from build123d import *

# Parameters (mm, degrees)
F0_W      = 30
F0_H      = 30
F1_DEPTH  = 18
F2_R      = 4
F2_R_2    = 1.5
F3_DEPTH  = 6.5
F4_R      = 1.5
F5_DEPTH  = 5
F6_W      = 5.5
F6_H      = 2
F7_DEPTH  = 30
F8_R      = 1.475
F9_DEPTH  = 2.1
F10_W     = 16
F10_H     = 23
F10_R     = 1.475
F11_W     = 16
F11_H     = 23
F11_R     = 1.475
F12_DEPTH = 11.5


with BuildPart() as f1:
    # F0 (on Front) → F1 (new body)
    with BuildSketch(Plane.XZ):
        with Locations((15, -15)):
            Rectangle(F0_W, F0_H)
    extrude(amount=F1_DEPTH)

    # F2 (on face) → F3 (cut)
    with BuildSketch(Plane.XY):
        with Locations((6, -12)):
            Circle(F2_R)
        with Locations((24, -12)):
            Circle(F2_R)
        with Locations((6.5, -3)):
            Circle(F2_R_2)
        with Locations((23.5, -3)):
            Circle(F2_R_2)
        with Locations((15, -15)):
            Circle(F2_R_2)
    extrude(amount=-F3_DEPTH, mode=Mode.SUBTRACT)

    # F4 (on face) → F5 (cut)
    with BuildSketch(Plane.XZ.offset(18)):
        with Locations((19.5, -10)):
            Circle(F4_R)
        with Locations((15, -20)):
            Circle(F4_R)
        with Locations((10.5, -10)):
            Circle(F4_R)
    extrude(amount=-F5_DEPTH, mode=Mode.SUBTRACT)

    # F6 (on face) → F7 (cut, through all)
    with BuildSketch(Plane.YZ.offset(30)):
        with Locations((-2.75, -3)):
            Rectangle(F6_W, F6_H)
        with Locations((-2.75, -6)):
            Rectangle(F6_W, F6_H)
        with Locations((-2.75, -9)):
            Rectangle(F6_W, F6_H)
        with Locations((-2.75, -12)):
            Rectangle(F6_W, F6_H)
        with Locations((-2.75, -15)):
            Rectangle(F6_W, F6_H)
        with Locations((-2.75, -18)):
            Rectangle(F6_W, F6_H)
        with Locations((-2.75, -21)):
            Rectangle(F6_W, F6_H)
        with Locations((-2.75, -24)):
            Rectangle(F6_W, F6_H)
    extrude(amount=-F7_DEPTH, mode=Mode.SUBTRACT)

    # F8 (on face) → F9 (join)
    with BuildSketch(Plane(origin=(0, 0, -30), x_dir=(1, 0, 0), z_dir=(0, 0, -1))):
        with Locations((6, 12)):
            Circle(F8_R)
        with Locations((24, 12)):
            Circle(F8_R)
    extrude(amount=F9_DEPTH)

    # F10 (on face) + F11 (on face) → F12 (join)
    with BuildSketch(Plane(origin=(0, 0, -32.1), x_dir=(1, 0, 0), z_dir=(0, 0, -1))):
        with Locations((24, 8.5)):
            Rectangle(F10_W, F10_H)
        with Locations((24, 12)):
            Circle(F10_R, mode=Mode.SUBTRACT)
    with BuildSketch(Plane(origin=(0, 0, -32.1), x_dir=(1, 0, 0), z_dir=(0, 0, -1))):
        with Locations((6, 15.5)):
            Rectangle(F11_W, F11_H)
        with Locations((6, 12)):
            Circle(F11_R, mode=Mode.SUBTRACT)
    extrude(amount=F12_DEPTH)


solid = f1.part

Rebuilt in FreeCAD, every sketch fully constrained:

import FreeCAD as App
import Part
import Sketcher

V = App.Vector
Q = App.Units.Quantity

doc = App.newDocument("Part")
body = doc.addObject("PartDesign::Body", "Body")
body.AllowCompound = True

sketch1 = body.newObject("Sketcher::SketchObject", "Sketch")
sketch1.AttachmentSupport = (doc.getObject("XZ_Plane"), [""])
sketch1.MapMode = "FlatFace"
sketch1.addGeometry(Part.LineSegment(V(0, 0, 0), V(0, -30, 0)), False)
sketch1.addGeometry(Part.LineSegment(V(0, -30, 0), V(30, -30, 0)), False)
sketch1.addGeometry(Part.LineSegment(V(30, -30, 0), V(30, 0, 0)), False)
sketch1.addGeometry(Part.LineSegment(V(30, 0, 0), V(0, 0, 0)), False)
sketch1.addConstraint(Sketcher.Constraint("Coincident", 0, 2, 1, 1))
sketch1.addConstraint(Sketcher.Constraint("Coincident", 1, 2, 2, 1))
sketch1.addConstraint(Sketcher.Constraint("Coincident", 2, 2, 3, 1))
sketch1.addConstraint(Sketcher.Constraint("Coincident", 3, 2, 0, 1))
sketch1.addConstraint(Sketcher.Constraint("Vertical", 0))
sketch1.addConstraint(Sketcher.Constraint("Horizontal", 1))
sketch1.addConstraint(Sketcher.Constraint("Vertical", 2))
sketch1.addConstraint(Sketcher.Constraint("Horizontal", 3))
sketch1.addConstraint(Sketcher.Constraint("Coincident", 3, 2, -1, 1))
sketch1.addConstraint(Sketcher.Constraint("Equal", 3, 0))
sketch1.addConstraint(Sketcher.Constraint("DistanceX", 1, 1, 1, 2, Q("30 mm")))
pad1 = body.newObject("PartDesign::Pad", "Pad")
pad1.Profile = sketch1
pad1.Length = 18

sketch2 = body.newObject("Sketcher::SketchObject", "Sketch001")
sketch2.AttachmentSupport = (doc.getObject("XY_Plane"), [""])
sketch2.MapMode = "FlatFace"
sketch2.addGeometry(Part.Circle(V(6, -12, 0), V(0, 0, 1), 4), False)
sketch2.addGeometry(Part.Circle(V(24, -12, 0), V(0, 0, 1), 4), False)
sketch2.addGeometry(Part.Circle(V(6.5, -3, 0), V(0, 0, 1), 1.5), False)
sketch2.addGeometry(Part.Circle(V(23.5, -3, 0), V(0, 0, 1), 1.5), False)
sketch2.addGeometry(Part.Circle(V(15, -15, 0), V(0, 0, 1), 1.5), False)
sketch2.addConstraint(Sketcher.Constraint("Equal", 0, 1))
sketch2.addConstraint(Sketcher.Constraint("Equal", 2, 3))
sketch2.addConstraint(Sketcher.Constraint("Equal", 3, 4))
sketch2.addConstraint(Sketcher.Constraint("Horizontal", 0, 3, 1, 3))
sketch2.addConstraint(Sketcher.Constraint("Horizontal", 2, 3, 3, 3))
sketch2.addConstraint(Sketcher.Constraint("Diameter", 0, Q("8 mm")))
sketch2.addConstraint(Sketcher.Constraint("Diameter", 2, Q("3 mm")))
sketch2.addConstraint(Sketcher.Constraint("DistanceX", -1, 1, 0, 3, Q("6 mm")))
sketch2.addConstraint(Sketcher.Constraint("DistanceY", 0, 3, -1, 1, Q("12 mm")))
sketch2.addConstraint(Sketcher.Constraint("DistanceX", -1, 1, 1, 3, Q("24 mm")))
sketch2.addConstraint(Sketcher.Constraint("DistanceY", 2, 3, -1, 1, Q("3 mm")))
sketch2.addConstraint(Sketcher.Constraint("DistanceX", -1, 1, 4, 3, Q("15 mm")))
sketch2.addConstraint(Sketcher.Constraint("DistanceY", 4, 3, -1, 1, Q("15 mm")))
sketch2.addConstraint(Sketcher.Constraint("DistanceX", 2, 3, 3, 3, Q("17 mm")))
sketch2.addConstraint(Sketcher.Constraint("DistanceX", -1, 1, 2, 3, Q("6.5 mm")))
pocket1 = body.newObject("PartDesign::Pocket", "Pocket")
pocket1.Profile = sketch2
pocket1.Length = 6.5

sketch3 = body.newObject("Sketcher::SketchObject", "Sketch002")
sketch3.AttachmentSupport = (doc.getObject("XZ_Plane"), [""])
sketch3.MapMode = "FlatFace"
sketch3.AttachmentOffset = App.Placement(V(0, 0, 18), App.Rotation())
sketch3.addGeometry(Part.Circle(V(19.5, -10, 0), V(0, 0, 1), 1.5), False)
sketch3.addGeometry(Part.Circle(V(15, -20, 0), V(0, 0, 1), 1.5), False)
sketch3.addGeometry(Part.Circle(V(10.5, -10, 0), V(0, 0, 1), 1.5), False)
sketch3.addConstraint(Sketcher.Constraint("Equal", 0, 1))
sketch3.addConstraint(Sketcher.Constraint("Equal", 1, 2))
sketch3.addConstraint(Sketcher.Constraint("Horizontal", 0, 3, 2, 3))
sketch3.addConstraint(Sketcher.Constraint("Diameter", 0, Q("3 mm")))
sketch3.addConstraint(Sketcher.Constraint("DistanceY", 0, 3, -1, 1, Q("10 mm")))
sketch3.addConstraint(Sketcher.Constraint("DistanceX", -1, 1, 1, 3, Q("15 mm")))
sketch3.addConstraint(Sketcher.Constraint("DistanceY", 1, 3, -1, 1, Q("20 mm")))
sketch3.addConstraint(Sketcher.Constraint("DistanceX", 2, 3, 0, 3, Q("9 mm")))
sketch3.addConstraint(Sketcher.Constraint("DistanceX", -1, 1, 0, 3, Q("19.5 mm")))
pocket2 = body.newObject("PartDesign::Pocket", "Pocket001")
pocket2.Profile = sketch3
pocket2.Length = 5

sketch4 = body.newObject("Sketcher::SketchObject", "Sketch003")
sketch4.AttachmentSupport = (doc.getObject("YZ_Plane"), [""])
sketch4.MapMode = "FlatFace"
sketch4.AttachmentOffset = App.Placement(V(0, 0, 30), App.Rotation())
sketch4.addGeometry(Part.LineSegment(V(-5.5, -2, 0), V(-5.5, -4, 0)), False)
sketch4.addGeometry(Part.LineSegment(V(-5.5, -4, 0), V(0, -4, 0)), False)
sketch4.addGeometry(Part.LineSegment(V(0, -4, 0), V(0, -2, 0)), False)
sketch4.addGeometry(Part.LineSegment(V(0, -2, 0), V(-5.5, -2, 0)), False)
sketch4.addGeometry(Part.LineSegment(V(-5.5, -5, 0), V(-5.5, -7, 0)), False)
sketch4.addGeometry(Part.LineSegment(V(-5.5, -7, 0), V(0, -7, 0)), False)
sketch4.addGeometry(Part.LineSegment(V(0, -7, 0), V(0, -5, 0)), False)
sketch4.addGeometry(Part.LineSegment(V(0, -5, 0), V(-5.5, -5, 0)), False)
sketch4.addGeometry(Part.LineSegment(V(-5.5, -8, 0), V(-5.5, -10, 0)), False)
sketch4.addGeometry(Part.LineSegment(V(-5.5, -10, 0), V(0, -10, 0)), False)
sketch4.addGeometry(Part.LineSegment(V(0, -10, 0), V(0, -8, 0)), False)
sketch4.addGeometry(Part.LineSegment(V(0, -8, 0), V(-5.5, -8, 0)), False)
sketch4.addGeometry(Part.LineSegment(V(-5.5, -11, 0), V(-5.5, -13, 0)), False)
sketch4.addGeometry(Part.LineSegment(V(-5.5, -13, 0), V(0, -13, 0)), False)
sketch4.addGeometry(Part.LineSegment(V(0, -13, 0), V(0, -11, 0)), False)
sketch4.addGeometry(Part.LineSegment(V(0, -11, 0), V(-5.5, -11, 0)), False)
sketch4.addGeometry(Part.LineSegment(V(-5.5, -14, 0), V(-5.5, -16, 0)), False)
sketch4.addGeometry(Part.LineSegment(V(-5.5, -16, 0), V(0, -16, 0)), False)
sketch4.addGeometry(Part.LineSegment(V(0, -16, 0), V(0, -14, 0)), False)
sketch4.addGeometry(Part.LineSegment(V(0, -14, 0), V(-5.5, -14, 0)), False)
sketch4.addGeometry(Part.LineSegment(V(-5.5, -17, 0), V(-5.5, -19, 0)), False)
sketch4.addGeometry(Part.LineSegment(V(-5.5, -19, 0), V(0, -19, 0)), False)
sketch4.addGeometry(Part.LineSegment(V(0, -19, 0), V(0, -17, 0)), False)
sketch4.addGeometry(Part.LineSegment(V(0, -17, 0), V(-5.5, -17, 0)), False)
sketch4.addGeometry(Part.LineSegment(V(-5.5, -20, 0), V(-5.5, -22, 0)), False)
sketch4.addGeometry(Part.LineSegment(V(-5.5, -22, 0), V(0, -22, 0)), False)
sketch4.addGeometry(Part.LineSegment(V(0, -22, 0), V(0, -20, 0)), False)
sketch4.addGeometry(Part.LineSegment(V(0, -20, 0), V(-5.5, -20, 0)), False)
sketch4.addGeometry(Part.LineSegment(V(-5.5, -23, 0), V(-5.5, -25, 0)), False)
sketch4.addGeometry(Part.LineSegment(V(-5.5, -25, 0), V(0, -25, 0)), False)
sketch4.addGeometry(Part.LineSegment(V(0, -25, 0), V(0, -23, 0)), False)
sketch4.addGeometry(Part.LineSegment(V(0, -23, 0), V(-5.5, -23, 0)), False)
sketch4.addConstraint(Sketcher.Constraint("Coincident", 0, 2, 1, 1))
sketch4.addConstraint(Sketcher.Constraint("Coincident", 1, 2, 2, 1))
sketch4.addConstraint(Sketcher.Constraint("Coincident", 2, 2, 3, 1))
sketch4.addConstraint(Sketcher.Constraint("Coincident", 3, 2, 0, 1))
sketch4.addConstraint(Sketcher.Constraint("Coincident", 4, 2, 5, 1))
sketch4.addConstraint(Sketcher.Constraint("Coincident", 5, 2, 6, 1))
sketch4.addConstraint(Sketcher.Constraint("Coincident", 6, 2, 7, 1))
sketch4.addConstraint(Sketcher.Constraint("Coincident", 7, 2, 4, 1))
sketch4.addConstraint(Sketcher.Constraint("Coincident", 8, 2, 9, 1))
sketch4.addConstraint(Sketcher.Constraint("Coincident", 9, 2, 10, 1))
sketch4.addConstraint(Sketcher.Constraint("Coincident", 10, 2, 11, 1))
sketch4.addConstraint(Sketcher.Constraint("Coincident", 11, 2, 8, 1))
sketch4.addConstraint(Sketcher.Constraint("Coincident", 12, 2, 13, 1))
sketch4.addConstraint(Sketcher.Constraint("Coincident", 13, 2, 14, 1))
sketch4.addConstraint(Sketcher.Constraint("Coincident", 14, 2, 15, 1))
sketch4.addConstraint(Sketcher.Constraint("Coincident", 15, 2, 12, 1))
sketch4.addConstraint(Sketcher.Constraint("Coincident", 16, 2, 17, 1))
sketch4.addConstraint(Sketcher.Constraint("Coincident", 17, 2, 18, 1))
sketch4.addConstraint(Sketcher.Constraint("Coincident", 18, 2, 19, 1))
sketch4.addConstraint(Sketcher.Constraint("Coincident", 19, 2, 16, 1))
sketch4.addConstraint(Sketcher.Constraint("Coincident", 20, 2, 21, 1))
sketch4.addConstraint(Sketcher.Constraint("Coincident", 21, 2, 22, 1))
sketch4.addConstraint(Sketcher.Constraint("Coincident", 22, 2, 23, 1))
sketch4.addConstraint(Sketcher.Constraint("Coincident", 23, 2, 20, 1))
sketch4.addConstraint(Sketcher.Constraint("Coincident", 24, 2, 25, 1))
sketch4.addConstraint(Sketcher.Constraint("Coincident", 25, 2, 26, 1))
sketch4.addConstraint(Sketcher.Constraint("Coincident", 26, 2, 27, 1))
sketch4.addConstraint(Sketcher.Constraint("Coincident", 27, 2, 24, 1))
sketch4.addConstraint(Sketcher.Constraint("Coincident", 28, 2, 29, 1))
sketch4.addConstraint(Sketcher.Constraint("Coincident", 29, 2, 30, 1))
sketch4.addConstraint(Sketcher.Constraint("Coincident", 30, 2, 31, 1))
sketch4.addConstraint(Sketcher.Constraint("Coincident", 31, 2, 28, 1))
sketch4.addConstraint(Sketcher.Constraint("Vertical", 0))
sketch4.addConstraint(Sketcher.Constraint("Horizontal", 1))
sketch4.addConstraint(Sketcher.Constraint("Vertical", 2))
sketch4.addConstraint(Sketcher.Constraint("Horizontal", 3))
sketch4.addConstraint(Sketcher.Constraint("Vertical", 4))
sketch4.addConstraint(Sketcher.Constraint("Horizontal", 5))
sketch4.addConstraint(Sketcher.Constraint("Vertical", 6))
sketch4.addConstraint(Sketcher.Constraint("Horizontal", 7))
sketch4.addConstraint(Sketcher.Constraint("Vertical", 8))
sketch4.addConstraint(Sketcher.Constraint("Horizontal", 9))
sketch4.addConstraint(Sketcher.Constraint("Vertical", 10))
sketch4.addConstraint(Sketcher.Constraint("Horizontal", 11))
sketch4.addConstraint(Sketcher.Constraint("Vertical", 12))
sketch4.addConstraint(Sketcher.Constraint("Horizontal", 13))
sketch4.addConstraint(Sketcher.Constraint("Vertical", 14))
sketch4.addConstraint(Sketcher.Constraint("Horizontal", 15))
sketch4.addConstraint(Sketcher.Constraint("Vertical", 16))
sketch4.addConstraint(Sketcher.Constraint("Horizontal", 17))
sketch4.addConstraint(Sketcher.Constraint("Vertical", 18))
sketch4.addConstraint(Sketcher.Constraint("Horizontal", 19))
sketch4.addConstraint(Sketcher.Constraint("Vertical", 20))
sketch4.addConstraint(Sketcher.Constraint("Horizontal", 21))
sketch4.addConstraint(Sketcher.Constraint("Vertical", 22))
sketch4.addConstraint(Sketcher.Constraint("Horizontal", 23))
sketch4.addConstraint(Sketcher.Constraint("Vertical", 24))
sketch4.addConstraint(Sketcher.Constraint("Horizontal", 25))
sketch4.addConstraint(Sketcher.Constraint("Vertical", 26))
sketch4.addConstraint(Sketcher.Constraint("Horizontal", 27))
sketch4.addConstraint(Sketcher.Constraint("Vertical", 28))
sketch4.addConstraint(Sketcher.Constraint("Horizontal", 29))
sketch4.addConstraint(Sketcher.Constraint("Vertical", 30))
sketch4.addConstraint(Sketcher.Constraint("Horizontal", 31))
sketch4.addConstraint(Sketcher.Constraint("PointOnObject", 1, 2, -2))
sketch4.addConstraint(Sketcher.Constraint("PointOnObject", 5, 2, -2))
sketch4.addConstraint(Sketcher.Constraint("PointOnObject", 9, 2, -2))
sketch4.addConstraint(Sketcher.Constraint("PointOnObject", 13, 2, -2))
sketch4.addConstraint(Sketcher.Constraint("PointOnObject", 17, 2, -2))
sketch4.addConstraint(Sketcher.Constraint("PointOnObject", 21, 2, -2))
sketch4.addConstraint(Sketcher.Constraint("PointOnObject", 25, 2, -2))
sketch4.addConstraint(Sketcher.Constraint("PointOnObject", 29, 2, -2))
sketch4.addConstraint(Sketcher.Constraint("Vertical", 3, 2, 4, 2))
sketch4.addConstraint(Sketcher.Constraint("Vertical", 7, 2, 8, 2))
sketch4.addConstraint(Sketcher.Constraint("Vertical", 11, 2, 12, 2))
sketch4.addConstraint(Sketcher.Constraint("Vertical", 15, 2, 16, 2))
sketch4.addConstraint(Sketcher.Constraint("Vertical", 19, 2, 20, 2))
sketch4.addConstraint(Sketcher.Constraint("Vertical", 23, 2, 24, 2))
sketch4.addConstraint(Sketcher.Constraint("Vertical", 27, 2, 28, 2))
sketch4.addConstraint(Sketcher.Constraint("Equal", 2, 4))
sketch4.addConstraint(Sketcher.Constraint("Equal", 6, 8))
sketch4.addConstraint(Sketcher.Constraint("Equal", 10, 12))
sketch4.addConstraint(Sketcher.Constraint("Equal", 14, 16))
sketch4.addConstraint(Sketcher.Constraint("Equal", 18, 20))
sketch4.addConstraint(Sketcher.Constraint("Equal", 22, 24))
sketch4.addConstraint(Sketcher.Constraint("Equal", 26, 28))
sketch4.addConstraint(Sketcher.Constraint("DistanceY", 0, 2, 0, 1, Q("2 mm")))
sketch4.addConstraint(Sketcher.Constraint("DistanceX", 1, 1, 1, 2, Q("5.5 mm")))
sketch4.addConstraint(Sketcher.Constraint("DistanceY", 0, 2, -1, 1, Q("4 mm")))
sketch4.addConstraint(Sketcher.Constraint("DistanceY", 4, 2, -1, 1, Q("7 mm")))
sketch4.addConstraint(Sketcher.Constraint("DistanceY", 8, 2, -1, 1, Q("10 mm")))
sketch4.addConstraint(Sketcher.Constraint("DistanceY", 12, 2, -1, 1, Q("13 mm")))
sketch4.addConstraint(Sketcher.Constraint("DistanceY", 16, 2, -1, 1, Q("16 mm")))
sketch4.addConstraint(Sketcher.Constraint("DistanceY", 20, 2, -1, 1, Q("19 mm")))
sketch4.addConstraint(Sketcher.Constraint("DistanceY", 24, 2, -1, 1, Q("22 mm")))
sketch4.addConstraint(Sketcher.Constraint("DistanceY", 28, 2, -1, 1, Q("25 mm")))
pocket3 = body.newObject("PartDesign::Pocket", "Pocket002")
pocket3.Profile = sketch4
pocket3.Type = "ThroughAll"

sketch5 = body.newObject("Sketcher::SketchObject", "Sketch004")
sketch5.AttachmentSupport = (doc.getObject("XY_Plane"), [""])
sketch5.MapMode = "FlatFace"
sketch5.AttachmentOffset = App.Placement(V(0, 0, -30), App.Rotation())
sketch5.addGeometry(Part.Circle(V(6, -12, 0), V(0, 0, 1), 1.5), False)
sketch5.addGeometry(Part.Circle(V(24, -12, 0), V(0, 0, 1), 1.5), False)
sketch5.addConstraint(Sketcher.Constraint("Equal", 0, 1))
sketch5.addConstraint(Sketcher.Constraint("Horizontal", 0, 3, 1, 3))
sketch5.addConstraint(Sketcher.Constraint("Diameter", 0, Q("2.95 mm")))
sketch5.addConstraint(Sketcher.Constraint("DistanceX", -1, 1, 0, 3, Q("6 mm")))
sketch5.addConstraint(Sketcher.Constraint("DistanceY", 0, 3, -1, 1, Q("12 mm")))
sketch5.addConstraint(Sketcher.Constraint("DistanceX", -1, 1, 1, 3, Q("24 mm")))
pad2 = body.newObject("PartDesign::Pad", "Pad001")
pad2.Profile = sketch5
pad2.Length = 2.1
pad2.Reversed = True

sketch6 = body.newObject("Sketcher::SketchObject", "Sketch005")
sketch6.AttachmentSupport = (doc.getObject("XY_Plane"), [""])
sketch6.MapMode = "FlatFace"
sketch6.AttachmentOffset = App.Placement(V(0, 0, -32.1), App.Rotation())
sketch6.addGeometry(Part.LineSegment(V(16, -20, 0), V(16, 3, 0)), False)
sketch6.addGeometry(Part.LineSegment(V(16, 3, 0), V(32, 3, 0)), False)
sketch6.addGeometry(Part.LineSegment(V(32, 3, 0), V(32, -20, 0)), False)
sketch6.addGeometry(Part.LineSegment(V(32, -20, 0), V(16, -20, 0)), False)
sketch6.addGeometry(Part.Circle(V(24, -12, 0), V(0, 0, 1), 1.5), False)
sketch6.addGeometry(Part.LineSegment(V(-2, -27, 0), V(-2, -4, 0)), False)
sketch6.addGeometry(Part.LineSegment(V(-2, -4, 0), V(14, -4, 0)), False)
sketch6.addGeometry(Part.LineSegment(V(14, -4, 0), V(14, -27, 0)), False)
sketch6.addGeometry(Part.LineSegment(V(14, -27, 0), V(-2, -27, 0)), False)
sketch6.addGeometry(Part.Circle(V(6, -12, 0), V(0, 0, 1), 1.5), False)
sketch6.addConstraint(Sketcher.Constraint("Coincident", 0, 2, 1, 1))
sketch6.addConstraint(Sketcher.Constraint("Coincident", 1, 2, 2, 1))
sketch6.addConstraint(Sketcher.Constraint("Coincident", 2, 2, 3, 1))
sketch6.addConstraint(Sketcher.Constraint("Coincident", 3, 2, 0, 1))
sketch6.addConstraint(Sketcher.Constraint("Coincident", 5, 2, 6, 1))
sketch6.addConstraint(Sketcher.Constraint("Coincident", 6, 2, 7, 1))
sketch6.addConstraint(Sketcher.Constraint("Coincident", 7, 2, 8, 1))
sketch6.addConstraint(Sketcher.Constraint("Coincident", 8, 2, 5, 1))
sketch6.addConstraint(Sketcher.Constraint("Vertical", 0))
sketch6.addConstraint(Sketcher.Constraint("Horizontal", 1))
sketch6.addConstraint(Sketcher.Constraint("Vertical", 2))
sketch6.addConstraint(Sketcher.Constraint("Horizontal", 3))
sketch6.addConstraint(Sketcher.Constraint("Vertical", 5))
sketch6.addConstraint(Sketcher.Constraint("Horizontal", 6))
sketch6.addConstraint(Sketcher.Constraint("Vertical", 7))
sketch6.addConstraint(Sketcher.Constraint("Horizontal", 8))
sketch6.addConstraint(Sketcher.Constraint("Equal", 4, 9))
sketch6.addConstraint(Sketcher.Constraint("Horizontal", 4, 3, 9, 3))
sketch6.addConstraint(Sketcher.Constraint("Equal", 3, 6))
sketch6.addConstraint(Sketcher.Constraint("Equal", 2, 5))
sketch6.addConstraint(Sketcher.Constraint("Diameter", 4, Q("2.95 mm")))
sketch6.addConstraint(Sketcher.Constraint("DistanceX", 1, 1, 1, 2, Q("16 mm")))
sketch6.addConstraint(Sketcher.Constraint("DistanceY", 0, 1, 0, 2, Q("23 mm")))
sketch6.addConstraint(Sketcher.Constraint("DistanceX", -1, 1, 4, 3, Q("24 mm")))
sketch6.addConstraint(Sketcher.Constraint("DistanceY", 4, 3, -1, 1, Q("12 mm")))
sketch6.addConstraint(Sketcher.Constraint("DistanceX", -1, 1, 9, 3, Q("6 mm")))
sketch6.addConstraint(Sketcher.Constraint("DistanceX", -1, 1, 0, 2, Q("16 mm")))
sketch6.addConstraint(Sketcher.Constraint("DistanceY", -1, 1, 0, 2, Q("3 mm")))
sketch6.addConstraint(Sketcher.Constraint("DistanceX", 5, 2, -1, 1, Q("2 mm")))
sketch6.addConstraint(Sketcher.Constraint("DistanceY", 5, 2, -1, 1, Q("4 mm")))
pad3 = body.newObject("PartDesign::Pad", "Pad002")
pad3.Profile = sketch6
pad3.Length = 11.5
pad3.Reversed = True

doc.recompute()
